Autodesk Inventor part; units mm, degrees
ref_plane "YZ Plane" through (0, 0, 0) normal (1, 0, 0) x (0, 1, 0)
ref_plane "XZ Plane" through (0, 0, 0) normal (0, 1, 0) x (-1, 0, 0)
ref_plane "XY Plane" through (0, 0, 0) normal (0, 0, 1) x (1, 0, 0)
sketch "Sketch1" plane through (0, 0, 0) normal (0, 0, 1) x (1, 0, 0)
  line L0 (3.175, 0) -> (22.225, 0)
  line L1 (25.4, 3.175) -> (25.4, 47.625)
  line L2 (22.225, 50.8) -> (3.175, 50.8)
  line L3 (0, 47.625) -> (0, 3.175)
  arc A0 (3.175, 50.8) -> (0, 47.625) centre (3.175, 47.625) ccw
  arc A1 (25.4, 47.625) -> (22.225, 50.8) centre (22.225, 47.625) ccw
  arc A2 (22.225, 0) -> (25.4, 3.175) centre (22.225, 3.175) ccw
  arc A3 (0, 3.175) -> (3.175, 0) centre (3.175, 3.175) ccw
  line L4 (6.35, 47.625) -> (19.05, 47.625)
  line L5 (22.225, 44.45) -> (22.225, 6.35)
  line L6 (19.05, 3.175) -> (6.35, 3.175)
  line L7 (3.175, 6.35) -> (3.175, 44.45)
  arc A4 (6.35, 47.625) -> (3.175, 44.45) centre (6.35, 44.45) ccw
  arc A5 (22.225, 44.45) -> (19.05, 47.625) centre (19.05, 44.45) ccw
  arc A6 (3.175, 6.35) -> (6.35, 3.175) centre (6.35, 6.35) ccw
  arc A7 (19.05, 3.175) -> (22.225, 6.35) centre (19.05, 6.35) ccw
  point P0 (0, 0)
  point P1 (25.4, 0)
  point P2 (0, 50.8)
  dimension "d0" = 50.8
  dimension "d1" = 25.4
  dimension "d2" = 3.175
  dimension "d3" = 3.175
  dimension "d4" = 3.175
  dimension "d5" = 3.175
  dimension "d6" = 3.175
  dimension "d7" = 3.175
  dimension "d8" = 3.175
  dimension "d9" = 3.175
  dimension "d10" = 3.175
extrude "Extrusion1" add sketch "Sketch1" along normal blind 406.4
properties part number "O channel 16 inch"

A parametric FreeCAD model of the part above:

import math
import FreeCAD as App
import Part
import Sketcher
Q = App.Units.Quantity

doc = App.newDocument("Part")
body = doc.addObject("PartDesign::Body", "Body")

sketch1 = body.newObject("Sketcher::SketchObject", "Sketch")
sketch1.AttachmentSupport = (doc.getObject("XY_Plane"), [""])
sketch1.MapMode = "FlatFace"
sketch1.addGeometry([
    Part.ArcOfCircle(Part.Circle(App.Vector(3.175, 3.175, 0), App.Vector(0, 0, 1), 3.175), math.radians(180), math.radians(270)),
    Part.LineSegment(App.Vector(3.175, 0, 0), App.Vector(22.225, 0, 0)),
    Part.ArcOfCircle(Part.Circle(App.Vector(22.225, 3.175, 0), App.Vector(0, 0, 1), 3.175), math.radians(-90), math.radians(0)),
    Part.LineSegment(App.Vector(25.4, 3.175, 0), App.Vector(25.4, 47.625, 0)),
    Part.ArcOfCircle(Part.Circle(App.Vector(22.225, 47.625, 0), App.Vector(0, 0, 1), 3.175), math.radians(0), math.radians(90)),
    Part.LineSegment(App.Vector(22.225, 50.8, 0), App.Vector(3.175, 50.8, 0)),
    Part.ArcOfCircle(Part.Circle(App.Vector(3.175, 47.625, 0), App.Vector(0, 0, 1), 3.175), math.radians(90), math.radians(180)),
    Part.LineSegment(App.Vector(0, 47.625, 0), App.Vector(0, 3.175, 0)),
    Part.ArcOfCircle(Part.Circle(App.Vector(6.35, 44.45, 0), App.Vector(0, 0, 1), 3.175), math.radians(90), math.radians(180)),
    Part.LineSegment(App.Vector(6.35, 47.625, 0), App.Vector(19.05, 47.625, 0)),
    Part.ArcOfCircle(Part.Circle(App.Vector(19.05, 44.45, 0), App.Vector(0, 0, 1), 3.175), math.radians(0), math.radians(90)),
    Part.LineSegment(App.Vector(22.225, 44.45, 0), App.Vector(22.225, 6.35, 0)),
    Part.ArcOfCircle(Part.Circle(App.Vector(19.05, 6.35, 0), App.Vector(0, 0, 1), 3.175), math.radians(-90), math.radians(0)),
    Part.LineSegment(App.Vector(19.05, 3.175, 0), App.Vector(6.35, 3.175, 0)),
    Part.ArcOfCircle(Part.Circle(App.Vector(6.35, 6.35, 0), App.Vector(0, 0, 1), 3.175), math.radians(180), math.radians(270)),
    Part.LineSegment(App.Vector(3.175, 6.35, 0), App.Vector(3.175, 44.45, 0)),
], False)
sketch1.addConstraint([
    Sketcher.Constraint("Tangent", 0, 2, 1, 1),
    Sketcher.Constraint("Tangent", 1, 2, 2, 1),
    Sketcher.Constraint("Tangent", 2, 2, 3, 1),
    Sketcher.Constraint("Tangent", 3, 2, 4, 1),
    Sketcher.Constraint("Tangent", 4, 2, 5, 1),
    Sketcher.Constraint("Tangent", 5, 2, 6, 1),
    Sketcher.Constraint("Tangent", 6, 2, 7, 1),
    Sketcher.Constraint("Tangent", 7, 2, 0, 1),
    Sketcher.Constraint("Tangent", 8, 1, 9, 1),
    Sketcher.Constraint("Tangent", 9, 2, 10, 2),
    Sketcher.Constraint("Tangent", 10, 1, 11, 1),
    Sketcher.Constraint("Tangent", 11, 2, 12, 2),
    Sketcher.Constraint("Tangent", 12, 1, 13, 1),
    Sketcher.Constraint("Tangent", 13, 2, 14, 2),
    Sketcher.Constraint("Tangent", 14, 1, 15, 1),
    Sketcher.Constraint("Tangent", 15, 2, 8, 2),
    Sketcher.Constraint("Horizontal", 1),
    Sketcher.Constraint("Vertical", 3),
    Sketcher.Constraint("Horizontal", 5),
    Sketcher.Constraint("Vertical", 7),
    Sketcher.Constraint("Horizontal", 9),
    Sketcher.Constraint("Vertical", 11),
    Sketcher.Constraint("Horizontal", 13),
    Sketcher.Constraint("Vertical", 15),
    Sketcher.Constraint("Equal", 0, 2),
    Sketcher.Constraint("Equal", 2, 4),
    Sketcher.Constraint("Equal", 4, 6),
    Sketcher.Constraint("Equal", 6, 8),
    Sketcher.Constraint("Equal", 8, 10),
    Sketcher.Constraint("Equal", 10, 12),
    Sketcher.Constraint("Equal", 12, 14),
    Sketcher.Constraint("PointOnObject", 0, 2, -1),
    Sketcher.Constraint("PointOnObject", 6, 2, -2),
    Sketcher.Constraint("Horizontal", 6, 2, 8, 1),
    Sketcher.Constraint("Horizontal", 7, 2, 12, 1),
    Sketcher.Constraint("Vertical", 4, 2, 10, 1),
    Sketcher.Constraint("Vertical", 5, 2, 14, 1),
    Sketcher.Constraint("DistanceX", -1, 1, 2, 2, Q("1 in")),
    Sketcher.Constraint("DistanceY", -1, 1, 4, 2, Q("2 in")),
    Sketcher.Constraint("Radius", 0, Q("0.125 in")),
])
pad1 = body.newObject("PartDesign::Pad", "Pad")
pad1.Profile = sketch1
pad1.Length = Q("16 in")

doc.recompute()
